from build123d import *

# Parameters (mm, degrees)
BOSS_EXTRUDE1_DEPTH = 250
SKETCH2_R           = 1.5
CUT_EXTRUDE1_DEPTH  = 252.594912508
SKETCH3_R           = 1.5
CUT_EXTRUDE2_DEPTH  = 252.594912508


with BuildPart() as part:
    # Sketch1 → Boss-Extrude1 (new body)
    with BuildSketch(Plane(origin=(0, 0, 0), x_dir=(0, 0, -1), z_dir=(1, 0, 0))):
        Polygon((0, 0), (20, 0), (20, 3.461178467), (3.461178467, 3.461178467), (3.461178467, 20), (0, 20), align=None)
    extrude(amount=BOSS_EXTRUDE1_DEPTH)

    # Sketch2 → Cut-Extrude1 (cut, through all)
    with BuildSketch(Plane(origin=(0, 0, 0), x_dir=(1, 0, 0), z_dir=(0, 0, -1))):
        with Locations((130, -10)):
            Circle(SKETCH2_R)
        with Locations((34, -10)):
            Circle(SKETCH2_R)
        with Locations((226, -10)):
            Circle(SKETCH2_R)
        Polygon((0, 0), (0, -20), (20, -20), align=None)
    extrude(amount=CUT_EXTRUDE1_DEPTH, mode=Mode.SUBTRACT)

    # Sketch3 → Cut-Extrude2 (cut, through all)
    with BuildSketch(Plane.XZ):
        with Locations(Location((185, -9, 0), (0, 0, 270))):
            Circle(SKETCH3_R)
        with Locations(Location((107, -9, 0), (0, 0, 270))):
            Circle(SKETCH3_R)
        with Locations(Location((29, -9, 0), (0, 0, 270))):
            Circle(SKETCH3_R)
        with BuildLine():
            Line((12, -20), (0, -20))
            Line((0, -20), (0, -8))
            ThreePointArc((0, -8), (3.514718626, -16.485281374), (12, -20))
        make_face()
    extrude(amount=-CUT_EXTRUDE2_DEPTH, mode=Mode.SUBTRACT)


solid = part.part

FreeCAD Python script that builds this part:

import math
import FreeCAD as App
import Part
import Sketcher
from FreeCAD import Vector
Q = App.Units.Quantity


def add_polygon(sketch, points):
    """Adds a closed chain of lines whose ends are joined by coincident constraints."""
    first, n = sketch.GeometryCount, len(points)
    for a, b in zip(points, points[1:] + points[:1]):
        sketch.addGeometry(Part.LineSegment(App.Vector(*a, 0), App.Vector(*b, 0)), False)
    for i in range(n):
        sketch.addConstraint(Sketcher.Constraint("Coincident", first + i, 2, first + (i + 1) % n, 1))

doc = App.newDocument("Part")
body = doc.addObject("PartDesign::Body", "Body")

sketch1 = body.newObject("Sketcher::SketchObject", "Sketch")
sketch1.AttachmentSupport = (doc.getObject("YZ_Plane"), [""])
sketch1.MapMode = "FlatFace"
add_polygon(sketch1, [(0, 0), (0, -20), (3.5, -20), (3.5, -3.5), (20, -3.5), (20, 0)])
sketch1.addConstraint(Sketcher.Constraint("Vertical", 0))
sketch1.addConstraint(Sketcher.Constraint("Horizontal", 1))
sketch1.addConstraint(Sketcher.Constraint("Vertical", 2))
sketch1.addConstraint(Sketcher.Constraint("Horizontal", 3))
sketch1.addConstraint(Sketcher.Constraint("Vertical", 4))
sketch1.addConstraint(Sketcher.Constraint("Horizontal", 5))
sketch1.addConstraint(Sketcher.Constraint("Coincident", 5, 2, -1, 1))
sketch1.addConstraint(Sketcher.Constraint("Equal", 5, 0))
sketch1.addConstraint(Sketcher.Constraint("Equal", 3, 2))
sketch1.addConstraint(Sketcher.Constraint("DistanceX", 5, 2, 5, 1, Q("20 mm")))
sketch1.addConstraint(Sketcher.Constraint("DistanceX", 1, 1, 1, 2, Q("3.461178 mm")))
pad1 = body.newObject("PartDesign::Pad", "Pad")
pad1.Profile = sketch1
pad1.Length = 250

sketch2 = body.newObject("Sketcher::SketchObject", "Sketch001")
sketch2.AttachmentSupport = (doc.getObject("XY_Plane"), [""])
sketch2.MapMode = "FlatFace"
sketch2.addGeometry(Part.Circle(Vector(130, 10, 0), Vector(0, 0, 1), 1.5), False)
sketch2.addGeometry(Part.Circle(Vector(34, 10, 0), Vector(0, 0, 1), 1.5), False)
sketch2.addGeometry(Part.Circle(Vector(226, 10, 0), Vector(0, 0, 1), 1.5), False)
add_polygon(sketch2, [(0, 0), (0, 20), (20, 20)])
sketch2.addConstraint(Sketcher.Constraint("Vertical", 3))
sketch2.addConstraint(Sketcher.Constraint("Horizontal", 4))
sketch2.addConstraint(Sketcher.Constraint("Coincident", 5, 2, -1, 1))
sketch2.addConstraint(Sketcher.Constraint("Equal", 0, 1))
sketch2.addConstraint(Sketcher.Constraint("Equal", 1, 2))
sketch2.addConstraint(Sketcher.Constraint("Horizontal", 0, 3, 1, 3))
sketch2.addConstraint(Sketcher.Constraint("Horizontal", 1, 3, 2, 3))
sketch2.addConstraint(Sketcher.Constraint("Equal", 4, 3))
sketch2.addConstraint(Sketcher.Constraint("Diameter", 0, Q("3 mm")))
sketch2.addConstraint(Sketcher.Constraint("DistanceX", 4, 1, 4, 2, Q("20 mm")))
sketch2.addConstraint(Sketcher.Constraint("DistanceX", -1, 1, 0, 3, Q("130 mm")))
sketch2.addConstraint(Sketcher.Constraint("DistanceY", -1, 1, 0, 3, Q("10 mm")))
sketch2.addConstraint(Sketcher.Constraint("DistanceX", -1, 1, 1, 3, Q("34 mm")))
sketch2.addConstraint(Sketcher.Constraint("DistanceX", -1, 1, 2, 3, Q("226 mm")))
pocket1 = body.newObject("PartDesign::Pocket", "Pocket")
pocket1.Profile = sketch2
pocket1.Type = "ThroughAll"

sketch3 = body.newObject("Sketcher::SketchObject", "Sketch002")
sketch3.AttachmentSupport = (doc.getObject("XZ_Plane"), [""])
sketch3.MapMode = "FlatFace"
sketch3.addGeometry(Part.Circle(Vector(185, -9, 0), Vector(0, 0, 1), 1.5), False)
sketch3.addGeometry(Part.Circle(Vector(107, -9, 0), Vector(0, 0, 1), 1.5), False)
sketch3.addGeometry(Part.Circle(Vector(29, -9, 0), Vector(0, 0, 1), 1.5), False)
sketch3.addGeometry(Part.LineSegment(Vector(0, -20, 0), Vector(12, -20, 0)), False)
sketch3.addGeometry(Part.ArcOfCircle(Part.Circle(Vector(12, -8, 0), Vector(0, 0, 1), 12), math.radians(-180), math.radians(-90)), False)
sketch3.addGeometry(Part.LineSegment(Vector(0, -8, 0), Vector(0, -20, 0)), False)
sketch3.addConstraint(Sketcher.Constraint("Tangent", 3, 2, 4, 2))
sketch3.addConstraint(Sketcher.Constraint("Tangent", 4, 1, 5, 1))
sketch3.addConstraint(Sketcher.Constraint("Coincident", 5, 2, 3, 1))
sketch3.addConstraint(Sketcher.Constraint("Horizontal", 3))
sketch3.addConstraint(Sketcher.Constraint("Vertical", 5))
sketch3.addConstraint(Sketcher.Constraint("Equal", 0, 1))
sketch3.addConstraint(Sketcher.Constraint("Equal", 1, 2))
sketch3.addConstraint(Sketcher.Constraint("PointOnObject", 4, 1, -2))
sketch3.addConstraint(Sketcher.Constraint("Horizontal", 0, 3, 1, 3))
sketch3.addConstraint(Sketcher.Constraint("Horizontal", 1, 3, 2, 3))
sketch3.addConstraint(Sketcher.Constraint("Diameter", 0, Q("3 mm")))
sketch3.addConstraint(Sketcher.Constraint("Radius", 4, Q("12 mm")))
sketch3.addConstraint(Sketcher.Constraint("DistanceX", -1, 1, 0, 3, Q("185 mm")))
sketch3.addConstraint(Sketcher.Constraint("DistanceY", 0, 3, -1, 1, Q("9 mm")))
sketch3.addConstraint(Sketcher.Constraint("DistanceX", -1, 1, 1, 3, Q("107 mm")))
sketch3.addConstraint(Sketcher.Constraint("DistanceX", -1, 1, 2, 3, Q("29 mm")))
sketch3.addConstraint(Sketcher.Constraint("DistanceY", 4, 3, -1, 1, Q("8 mm")))
pocket2 = body.newObject("PartDesign::Pocket", "Pocket001")
pocket2.Profile = sketch3
pocket2.Type = "ThroughAll"

doc.recompute()
